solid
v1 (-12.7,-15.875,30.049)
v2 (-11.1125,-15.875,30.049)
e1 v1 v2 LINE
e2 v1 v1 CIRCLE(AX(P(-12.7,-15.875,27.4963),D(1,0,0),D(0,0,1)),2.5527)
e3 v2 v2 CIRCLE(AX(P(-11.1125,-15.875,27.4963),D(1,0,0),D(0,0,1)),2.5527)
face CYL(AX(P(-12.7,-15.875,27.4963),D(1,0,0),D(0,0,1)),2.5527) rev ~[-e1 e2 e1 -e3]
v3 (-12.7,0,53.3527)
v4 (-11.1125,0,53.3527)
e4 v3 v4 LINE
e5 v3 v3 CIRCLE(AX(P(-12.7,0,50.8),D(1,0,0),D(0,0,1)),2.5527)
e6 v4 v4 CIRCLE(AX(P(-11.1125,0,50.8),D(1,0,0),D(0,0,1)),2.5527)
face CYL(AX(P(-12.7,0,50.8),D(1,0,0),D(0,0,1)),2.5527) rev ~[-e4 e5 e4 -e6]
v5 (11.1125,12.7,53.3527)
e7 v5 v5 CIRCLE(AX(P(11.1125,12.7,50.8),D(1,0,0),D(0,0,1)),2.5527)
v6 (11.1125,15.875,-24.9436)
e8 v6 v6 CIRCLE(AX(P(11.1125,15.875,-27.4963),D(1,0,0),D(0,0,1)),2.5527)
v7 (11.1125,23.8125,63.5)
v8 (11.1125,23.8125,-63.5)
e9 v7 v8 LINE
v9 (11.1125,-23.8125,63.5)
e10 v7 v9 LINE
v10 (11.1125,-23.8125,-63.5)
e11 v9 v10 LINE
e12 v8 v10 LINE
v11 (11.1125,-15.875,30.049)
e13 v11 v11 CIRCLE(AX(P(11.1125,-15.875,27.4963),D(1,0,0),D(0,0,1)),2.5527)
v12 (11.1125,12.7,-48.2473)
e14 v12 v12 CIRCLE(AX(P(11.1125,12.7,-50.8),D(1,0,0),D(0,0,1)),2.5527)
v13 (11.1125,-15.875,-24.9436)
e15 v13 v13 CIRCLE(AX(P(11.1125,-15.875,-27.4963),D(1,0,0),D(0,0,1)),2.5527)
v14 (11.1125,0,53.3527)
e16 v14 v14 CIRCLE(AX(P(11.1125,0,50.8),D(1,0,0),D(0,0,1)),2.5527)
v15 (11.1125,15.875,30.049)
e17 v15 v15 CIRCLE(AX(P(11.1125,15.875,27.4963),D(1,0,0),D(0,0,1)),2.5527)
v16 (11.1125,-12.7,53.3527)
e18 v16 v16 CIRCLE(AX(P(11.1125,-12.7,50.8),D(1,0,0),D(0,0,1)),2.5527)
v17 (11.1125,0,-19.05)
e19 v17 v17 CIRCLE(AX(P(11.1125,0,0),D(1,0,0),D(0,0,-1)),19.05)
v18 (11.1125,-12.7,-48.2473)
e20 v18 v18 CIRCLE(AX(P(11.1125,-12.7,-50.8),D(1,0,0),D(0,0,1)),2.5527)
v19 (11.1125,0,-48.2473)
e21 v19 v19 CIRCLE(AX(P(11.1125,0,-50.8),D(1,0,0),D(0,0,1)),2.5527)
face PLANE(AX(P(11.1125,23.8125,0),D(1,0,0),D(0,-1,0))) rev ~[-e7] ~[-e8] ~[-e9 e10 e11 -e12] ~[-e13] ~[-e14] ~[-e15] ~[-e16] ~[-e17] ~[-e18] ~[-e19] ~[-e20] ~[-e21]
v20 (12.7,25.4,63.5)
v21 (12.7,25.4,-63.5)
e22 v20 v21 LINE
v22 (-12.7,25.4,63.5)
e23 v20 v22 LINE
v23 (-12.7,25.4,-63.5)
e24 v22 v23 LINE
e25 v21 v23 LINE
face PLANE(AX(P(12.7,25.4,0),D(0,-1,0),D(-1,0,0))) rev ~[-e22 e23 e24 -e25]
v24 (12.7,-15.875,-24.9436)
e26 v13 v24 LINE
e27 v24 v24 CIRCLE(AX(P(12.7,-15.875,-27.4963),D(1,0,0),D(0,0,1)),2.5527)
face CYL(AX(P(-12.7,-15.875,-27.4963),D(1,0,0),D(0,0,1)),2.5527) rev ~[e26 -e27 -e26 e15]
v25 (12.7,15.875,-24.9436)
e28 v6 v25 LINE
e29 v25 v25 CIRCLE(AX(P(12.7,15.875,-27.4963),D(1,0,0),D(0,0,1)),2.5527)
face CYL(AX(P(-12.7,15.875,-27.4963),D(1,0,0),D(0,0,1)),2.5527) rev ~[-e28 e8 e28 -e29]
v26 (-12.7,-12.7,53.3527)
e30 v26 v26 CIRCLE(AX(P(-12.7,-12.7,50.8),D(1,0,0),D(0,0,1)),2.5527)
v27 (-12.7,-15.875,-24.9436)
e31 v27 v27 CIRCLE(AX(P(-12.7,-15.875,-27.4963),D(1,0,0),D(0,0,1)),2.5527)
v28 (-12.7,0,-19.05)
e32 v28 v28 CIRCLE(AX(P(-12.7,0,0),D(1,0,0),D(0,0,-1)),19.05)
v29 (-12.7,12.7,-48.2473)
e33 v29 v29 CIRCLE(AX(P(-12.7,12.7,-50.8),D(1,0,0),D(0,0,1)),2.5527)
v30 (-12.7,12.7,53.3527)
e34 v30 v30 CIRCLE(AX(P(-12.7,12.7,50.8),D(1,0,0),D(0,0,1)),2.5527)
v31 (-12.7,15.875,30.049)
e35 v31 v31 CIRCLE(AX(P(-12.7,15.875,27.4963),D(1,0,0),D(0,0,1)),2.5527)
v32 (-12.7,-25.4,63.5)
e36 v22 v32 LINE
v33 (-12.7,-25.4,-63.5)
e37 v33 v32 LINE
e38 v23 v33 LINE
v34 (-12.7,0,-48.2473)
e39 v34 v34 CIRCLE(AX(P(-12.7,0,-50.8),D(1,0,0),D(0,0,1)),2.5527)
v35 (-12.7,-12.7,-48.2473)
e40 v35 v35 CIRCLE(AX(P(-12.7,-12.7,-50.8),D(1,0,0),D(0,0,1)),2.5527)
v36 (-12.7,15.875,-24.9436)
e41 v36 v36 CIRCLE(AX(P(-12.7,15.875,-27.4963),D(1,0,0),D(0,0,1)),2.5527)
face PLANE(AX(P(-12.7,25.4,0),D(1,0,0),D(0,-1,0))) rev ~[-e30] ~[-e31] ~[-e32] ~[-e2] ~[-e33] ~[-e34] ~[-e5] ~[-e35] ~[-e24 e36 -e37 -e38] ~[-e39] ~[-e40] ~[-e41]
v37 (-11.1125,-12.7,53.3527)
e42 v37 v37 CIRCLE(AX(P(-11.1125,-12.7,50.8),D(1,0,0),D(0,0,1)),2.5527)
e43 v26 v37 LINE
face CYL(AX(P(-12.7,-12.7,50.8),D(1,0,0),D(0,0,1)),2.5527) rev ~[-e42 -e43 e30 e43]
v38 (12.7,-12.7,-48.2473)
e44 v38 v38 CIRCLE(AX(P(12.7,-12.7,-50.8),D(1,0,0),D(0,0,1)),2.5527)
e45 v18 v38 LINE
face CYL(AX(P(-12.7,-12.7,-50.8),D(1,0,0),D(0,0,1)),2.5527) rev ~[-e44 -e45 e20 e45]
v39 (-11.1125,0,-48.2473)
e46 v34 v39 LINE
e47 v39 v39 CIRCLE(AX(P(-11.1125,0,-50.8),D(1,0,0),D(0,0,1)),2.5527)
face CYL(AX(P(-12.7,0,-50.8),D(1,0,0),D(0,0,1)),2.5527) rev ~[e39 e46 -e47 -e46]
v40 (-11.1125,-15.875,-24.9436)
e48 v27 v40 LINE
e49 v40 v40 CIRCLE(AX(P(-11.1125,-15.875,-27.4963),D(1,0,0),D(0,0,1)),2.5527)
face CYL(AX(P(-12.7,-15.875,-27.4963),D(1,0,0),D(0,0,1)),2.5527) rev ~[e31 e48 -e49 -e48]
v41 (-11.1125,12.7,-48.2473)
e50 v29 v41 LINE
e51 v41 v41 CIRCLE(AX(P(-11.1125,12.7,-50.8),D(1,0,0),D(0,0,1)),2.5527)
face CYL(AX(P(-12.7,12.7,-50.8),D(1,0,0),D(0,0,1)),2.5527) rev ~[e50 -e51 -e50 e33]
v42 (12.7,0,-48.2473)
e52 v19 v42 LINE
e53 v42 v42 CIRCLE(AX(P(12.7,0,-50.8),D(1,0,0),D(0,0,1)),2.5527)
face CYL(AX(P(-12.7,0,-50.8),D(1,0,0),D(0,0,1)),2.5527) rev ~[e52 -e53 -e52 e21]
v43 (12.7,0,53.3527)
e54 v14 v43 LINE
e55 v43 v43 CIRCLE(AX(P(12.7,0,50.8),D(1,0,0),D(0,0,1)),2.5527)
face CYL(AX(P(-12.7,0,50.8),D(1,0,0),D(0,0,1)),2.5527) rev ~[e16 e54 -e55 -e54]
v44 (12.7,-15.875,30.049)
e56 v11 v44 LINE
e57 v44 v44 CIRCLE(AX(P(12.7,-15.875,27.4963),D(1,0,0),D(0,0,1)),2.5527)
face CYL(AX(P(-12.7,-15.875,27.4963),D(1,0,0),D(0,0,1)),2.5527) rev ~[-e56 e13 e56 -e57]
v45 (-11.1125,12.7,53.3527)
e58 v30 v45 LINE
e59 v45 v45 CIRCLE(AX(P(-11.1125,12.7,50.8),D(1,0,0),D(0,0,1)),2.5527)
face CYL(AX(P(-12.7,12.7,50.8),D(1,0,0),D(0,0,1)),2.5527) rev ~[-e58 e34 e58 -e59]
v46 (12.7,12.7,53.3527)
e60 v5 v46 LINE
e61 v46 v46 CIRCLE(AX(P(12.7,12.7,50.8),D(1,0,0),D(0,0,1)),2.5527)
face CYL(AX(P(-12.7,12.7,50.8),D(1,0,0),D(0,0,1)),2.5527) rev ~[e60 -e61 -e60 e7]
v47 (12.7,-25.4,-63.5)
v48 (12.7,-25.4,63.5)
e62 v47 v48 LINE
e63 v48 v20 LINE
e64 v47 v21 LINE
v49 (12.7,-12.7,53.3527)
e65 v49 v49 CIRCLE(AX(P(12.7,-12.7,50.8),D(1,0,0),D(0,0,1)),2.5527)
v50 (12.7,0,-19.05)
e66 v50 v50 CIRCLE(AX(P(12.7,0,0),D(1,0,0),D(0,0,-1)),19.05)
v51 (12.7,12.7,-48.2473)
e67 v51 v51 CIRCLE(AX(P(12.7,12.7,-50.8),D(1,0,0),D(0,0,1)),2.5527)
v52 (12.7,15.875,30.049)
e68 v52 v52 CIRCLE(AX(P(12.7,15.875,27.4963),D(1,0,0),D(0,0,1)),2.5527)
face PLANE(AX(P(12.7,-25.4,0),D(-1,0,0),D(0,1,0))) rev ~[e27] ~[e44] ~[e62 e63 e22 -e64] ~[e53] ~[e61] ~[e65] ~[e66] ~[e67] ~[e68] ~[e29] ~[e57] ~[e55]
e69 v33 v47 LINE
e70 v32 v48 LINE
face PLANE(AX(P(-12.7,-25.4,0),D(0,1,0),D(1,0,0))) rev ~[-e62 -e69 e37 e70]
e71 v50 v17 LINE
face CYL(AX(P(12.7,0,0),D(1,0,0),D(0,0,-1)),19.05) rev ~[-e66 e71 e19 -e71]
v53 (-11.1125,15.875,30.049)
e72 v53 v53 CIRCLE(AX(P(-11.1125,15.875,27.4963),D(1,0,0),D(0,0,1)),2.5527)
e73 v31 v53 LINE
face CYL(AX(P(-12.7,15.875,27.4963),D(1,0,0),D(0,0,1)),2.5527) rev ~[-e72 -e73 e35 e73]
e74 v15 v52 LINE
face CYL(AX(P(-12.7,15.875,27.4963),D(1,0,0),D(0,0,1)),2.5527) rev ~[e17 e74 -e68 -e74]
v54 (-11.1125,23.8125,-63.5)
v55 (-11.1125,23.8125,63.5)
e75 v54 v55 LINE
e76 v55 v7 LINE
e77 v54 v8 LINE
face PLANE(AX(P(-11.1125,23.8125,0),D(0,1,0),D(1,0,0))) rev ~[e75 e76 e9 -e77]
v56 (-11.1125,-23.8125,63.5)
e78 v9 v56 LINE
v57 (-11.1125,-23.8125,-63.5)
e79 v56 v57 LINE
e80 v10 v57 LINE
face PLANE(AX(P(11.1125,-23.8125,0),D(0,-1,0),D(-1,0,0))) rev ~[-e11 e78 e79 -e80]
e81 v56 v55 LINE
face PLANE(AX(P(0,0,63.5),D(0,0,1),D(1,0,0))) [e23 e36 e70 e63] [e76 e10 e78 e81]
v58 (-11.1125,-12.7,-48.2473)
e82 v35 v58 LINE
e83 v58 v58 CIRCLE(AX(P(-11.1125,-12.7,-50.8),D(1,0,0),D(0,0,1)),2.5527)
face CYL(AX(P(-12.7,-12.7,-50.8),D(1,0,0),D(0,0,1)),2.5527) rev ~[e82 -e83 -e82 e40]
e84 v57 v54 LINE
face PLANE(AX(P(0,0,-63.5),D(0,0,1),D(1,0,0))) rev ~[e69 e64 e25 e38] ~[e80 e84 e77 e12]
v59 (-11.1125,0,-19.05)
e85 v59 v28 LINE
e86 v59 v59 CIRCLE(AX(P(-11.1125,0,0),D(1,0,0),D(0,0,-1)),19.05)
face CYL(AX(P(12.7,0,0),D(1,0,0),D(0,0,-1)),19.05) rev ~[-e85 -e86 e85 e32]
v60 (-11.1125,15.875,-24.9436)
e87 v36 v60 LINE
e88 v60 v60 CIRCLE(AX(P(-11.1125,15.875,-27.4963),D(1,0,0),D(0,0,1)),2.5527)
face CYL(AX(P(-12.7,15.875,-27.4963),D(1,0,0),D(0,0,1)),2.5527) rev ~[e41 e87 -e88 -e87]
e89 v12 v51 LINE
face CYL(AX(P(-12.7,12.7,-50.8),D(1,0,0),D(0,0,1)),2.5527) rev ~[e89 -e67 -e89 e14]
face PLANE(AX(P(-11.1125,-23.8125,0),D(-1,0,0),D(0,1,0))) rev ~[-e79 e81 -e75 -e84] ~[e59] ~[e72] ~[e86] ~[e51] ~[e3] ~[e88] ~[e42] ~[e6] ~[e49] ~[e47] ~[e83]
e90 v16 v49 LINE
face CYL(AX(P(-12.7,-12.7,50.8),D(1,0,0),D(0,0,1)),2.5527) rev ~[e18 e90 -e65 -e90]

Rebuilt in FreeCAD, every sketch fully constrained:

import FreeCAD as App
import Part
import Sketcher

V = App.Vector
Q = App.Units.Quantity

doc = App.newDocument("Part")
body = doc.addObject("PartDesign::Body", "Body")

# Sketch on XY plane
sketch1 = body.newObject("Sketcher::SketchObject", "Sketch")
sketch1.AttachmentSupport = (doc.getObject("XY_Plane"), [""])
sketch1.MapMode = "FlatFace"
sketch1.addGeometry(Part.LineSegment(V(-13, 25, 0), V(-13, -25, 0)), False)
sketch1.addGeometry(Part.LineSegment(V(-13, -25, 0), V(13, -25, 0)), False)
sketch1.addGeometry(Part.LineSegment(V(13, -25, 0), V(13, 25, 0)), False)
sketch1.addGeometry(Part.LineSegment(V(13, 25, 0), V(-13, 25, 0)), False)
sketch1.addGeometry(Part.LineSegment(V(-11, -24, 0), V(-11, 24, 0)), False)
sketch1.addGeometry(Part.LineSegment(V(-11, 24, 0), V(11, 24, 0)), False)
sketch1.addGeometry(Part.LineSegment(V(11, 24, 0), V(11, -24, 0)), False)
sketch1.addGeometry(Part.LineSegment(V(11, -24, 0), V(-11, -24, 0)), False)
sketch1.addConstraint(Sketcher.Constraint("Coincident", 0, 2, 1, 1))
sketch1.addConstraint(Sketcher.Constraint("Coincident", 1, 2, 2, 1))
sketch1.addConstraint(Sketcher.Constraint("Coincident", 2, 2, 3, 1))
sketch1.addConstraint(Sketcher.Constraint("Coincident", 3, 2, 0, 1))
sketch1.addConstraint(Sketcher.Constraint("Coincident", 4, 2, 5, 1))
sketch1.addConstraint(Sketcher.Constraint("Coincident", 5, 2, 6, 1))
sketch1.addConstraint(Sketcher.Constraint("Coincident", 6, 2, 7, 1))
sketch1.addConstraint(Sketcher.Constraint("Coincident", 7, 2, 4, 1))
sketch1.addConstraint(Sketcher.Constraint("Vertical", 0))
sketch1.addConstraint(Sketcher.Constraint("Horizontal", 1))
sketch1.addConstraint(Sketcher.Constraint("Vertical", 2))
sketch1.addConstraint(Sketcher.Constraint("Horizontal", 3))
sketch1.addConstraint(Sketcher.Constraint("Vertical", 4))
sketch1.addConstraint(Sketcher.Constraint("Horizontal", 5))
sketch1.addConstraint(Sketcher.Constraint("Vertical", 6))
sketch1.addConstraint(Sketcher.Constraint("Horizontal", 7))
sketch1.addConstraint(Sketcher.Constraint("Symmetric", 0, 2, 2, 2, -1, 1))
sketch1.addConstraint(Sketcher.Constraint("Symmetric", 4, 2, 6, 2, -1, 1))
sketch1.addConstraint(Sketcher.Constraint("DistanceX", 1, 1, 1, 2, Q("1 in")))
sketch1.addConstraint(Sketcher.Constraint("DistanceY", 0, 2, 0, 1, Q("2 in")))
sketch1.addConstraint(Sketcher.Constraint("DistanceX", 3, 2, 4, 2, Q("0.0625 in")))
sketch1.addConstraint(Sketcher.Constraint("DistanceY", 4, 2, 3, 2, Q("0.0625 in")))
pad1 = body.newObject("PartDesign::Pad", "Pad")
pad1.Profile = sketch1
pad1.Length = Q("5 in")
pad1.Midplane = True

# Sketch on YZ plane
sketch2 = body.newObject("Sketcher::SketchObject", "Sketch001")
sketch2.AttachmentSupport = (doc.getObject("YZ_Plane"), [""])
sketch2.MapMode = "FlatFace"
sketch2.AttachmentOffset = App.Placement(V(0, 0, -0.5 * 25.4), App.Rotation())
sketch2.addGeometry(Part.Circle(V(15.9, -27.5, 0), V(0, 0, 1), 2.6), False)
sketch2.addGeometry(Part.Circle(V(-15.9, -27.5, 0), V(0, 0, 1), 2.6), False)
sketch2.addGeometry(Part.Circle(V(-15.9, 27.5, 0), V(0, 0, 1), 2.6), False)
sketch2.addGeometry(Part.Circle(V(15.9, 27.5, 0), V(0, 0, 1), 2.6), False)
sketch2.addGeometry(Part.Circle(V(12.7, -50.8, 0), V(0, 0, 1), 2.6), False)
sketch2.addGeometry(Part.Circle(V(0, -50.8, 0), V(0, 0, 1), 2.6), False)
sketch2.addGeometry(Part.Circle(V(-12.7, -50.8, 0), V(0, 0, 1), 2.6), False)
sketch2.addGeometry(Part.Circle(V(-12.7, 50.8, 0), V(0, 0, 1), 2.6), False)
sketch2.addGeometry(Part.Circle(V(0, 50.8, 0), V(0, 0, 1), 2.6), False)
sketch2.addGeometry(Part.Circle(V(12.7, 50.8, 0), V(0, 0, 1), 2.6), False)
sketch2.addConstraint(Sketcher.Constraint("Equal", 0, 1))
sketch2.addConstraint(Sketcher.Constraint("Equal", 1, 2))
sketch2.addConstraint(Sketcher.Constraint("Equal", 2, 3))
sketch2.addConstraint(Sketcher.Constraint("Equal", 3, 4))
sketch2.addConstraint(Sketcher.Constraint("Equal", 4, 5))
sketch2.addConstraint(Sketcher.Constraint("Equal", 5, 6))
sketch2.addConstraint(Sketcher.Constraint("Equal", 6, 7))
sketch2.addConstraint(Sketcher.Constraint("Equal", 7, 8))
sketch2.addConstraint(Sketcher.Constraint("Equal", 8, 9))
sketch2.addConstraint(Sketcher.Constraint("Symmetric", 0, 3, 2, 3, -1, 1))
sketch2.addConstraint(Sketcher.Constraint("Symmetric", 1, 3, 3, 3, -1, 1))
sketch2.addConstraint(Sketcher.Constraint("Symmetric", 4, 3, 7, 3, -1, 1))
sketch2.addConstraint(Sketcher.Constraint("Symmetric", 5, 3, 8, 3, -1, 1))
sketch2.addConstraint(Sketcher.Constraint("Symmetric", 6, 3, 9, 3, -1, 1))
sketch2.addConstraint(Sketcher.Constraint("Symmetric", 0, 3, 1, 3, -2))
sketch2.addConstraint(Sketcher.Constraint("Symmetric", 4, 3, 6, 3, -2))
sketch2.addConstraint(Sketcher.Constraint("PointOnObject", 5, 3, -2))
sketch2.addConstraint(Sketcher.Constraint("Horizontal", 4, 3, 5, 3))
sketch2.addConstraint(Sketcher.Constraint("Diameter", 0, Q("0.201 in")))
sketch2.addConstraint(Sketcher.Constraint("DistanceY", 4, 3, -1, 1, Q("2 in")))
sketch2.addConstraint(Sketcher.Constraint("DistanceX", 6, 3, 4, 3, Q("1 in")))
sketch2.addConstraint(Sketcher.Constraint("DistanceX", 1, 3, 0, 3, Q("1.25 in")))
sketch2.addConstraint(Sketcher.Constraint("DistanceY", 0, 3, -1, 1, Q("27.4963 mm")))
doc.recompute()
hole = body.newObject("PartDesign::Hole", "Hole")
hole.Profile = sketch2
hole.ThreadType = "None"
hole.Diameter = Q("0.201 in")
hole.DepthType = "ThroughAll"
hole.Reversed = True

# Sketch on YZ plane
sketch3 = body.newObject("Sketcher::SketchObject", "Sketch002")
sketch3.AttachmentSupport = (doc.getObject("YZ_Plane"), [""])
sketch3.MapMode = "FlatFace"
sketch3.AttachmentOffset = App.Placement(V(0, 0, 0.5 * 25.4), App.Rotation())
sketch3.addGeometry(Part.Circle(V(0, 0, 0), V(0, 0, 1), 19), False)
sketch3.addConstraint(Sketcher.Constraint("Coincident", 0, 3, -1, 1))
sketch3.addConstraint(Sketcher.Constraint("Diameter", 0, Q("1.5 in")))
pocket1 = body.newObject("PartDesign::Pocket", "Pocket")
pocket1.Profile = sketch3
pocket1.Type = "ThroughAll"

doc.recompute()
